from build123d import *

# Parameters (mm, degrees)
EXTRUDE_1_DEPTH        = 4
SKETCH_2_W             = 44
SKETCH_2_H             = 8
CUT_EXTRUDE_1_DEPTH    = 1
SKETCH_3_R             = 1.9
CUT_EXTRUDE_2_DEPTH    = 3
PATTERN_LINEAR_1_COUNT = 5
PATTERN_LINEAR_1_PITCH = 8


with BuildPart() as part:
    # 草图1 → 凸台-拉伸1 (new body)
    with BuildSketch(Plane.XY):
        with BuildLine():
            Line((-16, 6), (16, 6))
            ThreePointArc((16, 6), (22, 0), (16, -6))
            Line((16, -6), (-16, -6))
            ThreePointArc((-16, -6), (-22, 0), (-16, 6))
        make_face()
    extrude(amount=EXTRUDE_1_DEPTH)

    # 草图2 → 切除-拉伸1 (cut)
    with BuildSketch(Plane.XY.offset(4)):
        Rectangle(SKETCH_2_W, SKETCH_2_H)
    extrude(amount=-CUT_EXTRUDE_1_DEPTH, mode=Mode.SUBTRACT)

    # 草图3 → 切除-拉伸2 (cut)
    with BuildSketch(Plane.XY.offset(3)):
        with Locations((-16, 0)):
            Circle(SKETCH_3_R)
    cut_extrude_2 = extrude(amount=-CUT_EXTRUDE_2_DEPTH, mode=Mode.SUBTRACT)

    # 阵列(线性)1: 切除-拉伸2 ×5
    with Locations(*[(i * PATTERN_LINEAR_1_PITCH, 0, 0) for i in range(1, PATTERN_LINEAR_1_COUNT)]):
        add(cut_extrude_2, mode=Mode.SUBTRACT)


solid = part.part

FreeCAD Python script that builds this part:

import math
import FreeCAD as App
import Part
import Sketcher

V = App.Vector

doc = App.newDocument("Part")
body = doc.addObject("PartDesign::Body", "Body")

sketch1 = body.newObject("Sketcher::SketchObject", "Sketch")
sketch1.AttachmentSupport = (doc.getObject("XY_Plane"), [""])
sketch1.MapMode = "FlatFace"
sketch1.addGeometry([
    Part.LineSegment(V(16, 6, 0), V(-16, 6, 0)),
    Part.ArcOfCircle(Part.Circle(V(-16, 0, 0), V(0, 0, 1), 6), math.radians(90), math.radians(270)),
    Part.LineSegment(V(-16, -6, 0), V(16, -6, 0)),
    Part.ArcOfCircle(Part.Circle(V(16, 0, 0), V(0, 0, 1), 6), math.radians(-90), math.radians(90)),
], False)
sketch1.addConstraint([
    Sketcher.Constraint("Tangent", 0, 2, 1, 1),
    Sketcher.Constraint("Tangent", 1, 2, 2, 1),
    Sketcher.Constraint("Tangent", 2, 2, 3, 1),
    Sketcher.Constraint("Tangent", 3, 2, 0, 1),
    Sketcher.Constraint("Horizontal", 0),
    Sketcher.Constraint("Horizontal", 2),
    Sketcher.Constraint("Symmetric", 1, 3, 3, 3, -1, 1),
    Sketcher.Constraint("Radius", 1, 6.0),
    Sketcher.Constraint("DistanceX", 0, 2, 0, 1, 32.0),
])
pad1 = body.newObject("PartDesign::Pad", "Pad")
pad1.Profile = sketch1
pad1.Length = 4

sketch2 = body.newObject("Sketcher::SketchObject", "Sketch001")
sketch2.AttachmentSupport = (doc.getObject("XY_Plane"), [""])
sketch2.MapMode = "FlatFace"
sketch2.AttachmentOffset = App.Placement(V(0, 0, 4), App.Rotation())
sketch2.addGeometry([
    Part.LineSegment(V(-22, 4, 0), V(-22, -4, 0)),
    Part.LineSegment(V(-22, -4, 0), V(22, -4, 0)),
    Part.LineSegment(V(22, -4, 0), V(22, 4, 0)),
    Part.LineSegment(V(22, 4, 0), V(-22, 4, 0)),
], False)
sketch2.addConstraint([
    Sketcher.Constraint("Coincident", 0, 2, 1, 1),
    Sketcher.Constraint("Coincident", 1, 2, 2, 1),
    Sketcher.Constraint("Coincident", 2, 2, 3, 1),
    Sketcher.Constraint("Coincident", 3, 2, 0, 1),
    Sketcher.Constraint("Vertical", 0),
    Sketcher.Constraint("Horizontal", 1),
    Sketcher.Constraint("Vertical", 2),
    Sketcher.Constraint("Horizontal", 3),
    Sketcher.Constraint("Symmetric", 0, 2, 2, 2, -1, 1),
    Sketcher.Constraint("DistanceX", 1, 1, 1, 2, 44.0),
    Sketcher.Constraint("DistanceY", 0, 2, 0, 1, 8.0),
])
pocket1 = body.newObject("PartDesign::Pocket", "Pocket")
pocket1.Profile = sketch2
pocket1.Length = 1

sketch3 = body.newObject("Sketcher::SketchObject", "Sketch002")
sketch3.AttachmentSupport = (doc.getObject("XY_Plane"), [""])
sketch3.MapMode = "FlatFace"
sketch3.AttachmentOffset = App.Placement(V(0, 0, 3), App.Rotation())
sketch3.addGeometry(Part.Circle(V(-16, 0, 0), V(0, 0, 1), 1.9), False)
sketch3.addConstraint([
    Sketcher.Constraint("PointOnObject", 0, 3, -1),
    Sketcher.Constraint("Diameter", 0, 3.8),
    Sketcher.Constraint("DistanceX", 0, 3, -1, 1, 16.0),
])
pocket2 = body.newObject("PartDesign::Pocket", "Pocket001")
pocket2.Profile = sketch3
pocket2.Length = 3
doc.recompute()

linearpattern = body.newObject("PartDesign::LinearPattern", "LinearPattern")
linearpattern.Originals = [pocket2]
linearpattern.Direction = (doc.getObject("X_Axis"), [""])
linearpattern.Mode = "offset"
linearpattern.Offset = 8
linearpattern.Occurrences = 5
body.Tip = linearpattern

doc.recompute()
